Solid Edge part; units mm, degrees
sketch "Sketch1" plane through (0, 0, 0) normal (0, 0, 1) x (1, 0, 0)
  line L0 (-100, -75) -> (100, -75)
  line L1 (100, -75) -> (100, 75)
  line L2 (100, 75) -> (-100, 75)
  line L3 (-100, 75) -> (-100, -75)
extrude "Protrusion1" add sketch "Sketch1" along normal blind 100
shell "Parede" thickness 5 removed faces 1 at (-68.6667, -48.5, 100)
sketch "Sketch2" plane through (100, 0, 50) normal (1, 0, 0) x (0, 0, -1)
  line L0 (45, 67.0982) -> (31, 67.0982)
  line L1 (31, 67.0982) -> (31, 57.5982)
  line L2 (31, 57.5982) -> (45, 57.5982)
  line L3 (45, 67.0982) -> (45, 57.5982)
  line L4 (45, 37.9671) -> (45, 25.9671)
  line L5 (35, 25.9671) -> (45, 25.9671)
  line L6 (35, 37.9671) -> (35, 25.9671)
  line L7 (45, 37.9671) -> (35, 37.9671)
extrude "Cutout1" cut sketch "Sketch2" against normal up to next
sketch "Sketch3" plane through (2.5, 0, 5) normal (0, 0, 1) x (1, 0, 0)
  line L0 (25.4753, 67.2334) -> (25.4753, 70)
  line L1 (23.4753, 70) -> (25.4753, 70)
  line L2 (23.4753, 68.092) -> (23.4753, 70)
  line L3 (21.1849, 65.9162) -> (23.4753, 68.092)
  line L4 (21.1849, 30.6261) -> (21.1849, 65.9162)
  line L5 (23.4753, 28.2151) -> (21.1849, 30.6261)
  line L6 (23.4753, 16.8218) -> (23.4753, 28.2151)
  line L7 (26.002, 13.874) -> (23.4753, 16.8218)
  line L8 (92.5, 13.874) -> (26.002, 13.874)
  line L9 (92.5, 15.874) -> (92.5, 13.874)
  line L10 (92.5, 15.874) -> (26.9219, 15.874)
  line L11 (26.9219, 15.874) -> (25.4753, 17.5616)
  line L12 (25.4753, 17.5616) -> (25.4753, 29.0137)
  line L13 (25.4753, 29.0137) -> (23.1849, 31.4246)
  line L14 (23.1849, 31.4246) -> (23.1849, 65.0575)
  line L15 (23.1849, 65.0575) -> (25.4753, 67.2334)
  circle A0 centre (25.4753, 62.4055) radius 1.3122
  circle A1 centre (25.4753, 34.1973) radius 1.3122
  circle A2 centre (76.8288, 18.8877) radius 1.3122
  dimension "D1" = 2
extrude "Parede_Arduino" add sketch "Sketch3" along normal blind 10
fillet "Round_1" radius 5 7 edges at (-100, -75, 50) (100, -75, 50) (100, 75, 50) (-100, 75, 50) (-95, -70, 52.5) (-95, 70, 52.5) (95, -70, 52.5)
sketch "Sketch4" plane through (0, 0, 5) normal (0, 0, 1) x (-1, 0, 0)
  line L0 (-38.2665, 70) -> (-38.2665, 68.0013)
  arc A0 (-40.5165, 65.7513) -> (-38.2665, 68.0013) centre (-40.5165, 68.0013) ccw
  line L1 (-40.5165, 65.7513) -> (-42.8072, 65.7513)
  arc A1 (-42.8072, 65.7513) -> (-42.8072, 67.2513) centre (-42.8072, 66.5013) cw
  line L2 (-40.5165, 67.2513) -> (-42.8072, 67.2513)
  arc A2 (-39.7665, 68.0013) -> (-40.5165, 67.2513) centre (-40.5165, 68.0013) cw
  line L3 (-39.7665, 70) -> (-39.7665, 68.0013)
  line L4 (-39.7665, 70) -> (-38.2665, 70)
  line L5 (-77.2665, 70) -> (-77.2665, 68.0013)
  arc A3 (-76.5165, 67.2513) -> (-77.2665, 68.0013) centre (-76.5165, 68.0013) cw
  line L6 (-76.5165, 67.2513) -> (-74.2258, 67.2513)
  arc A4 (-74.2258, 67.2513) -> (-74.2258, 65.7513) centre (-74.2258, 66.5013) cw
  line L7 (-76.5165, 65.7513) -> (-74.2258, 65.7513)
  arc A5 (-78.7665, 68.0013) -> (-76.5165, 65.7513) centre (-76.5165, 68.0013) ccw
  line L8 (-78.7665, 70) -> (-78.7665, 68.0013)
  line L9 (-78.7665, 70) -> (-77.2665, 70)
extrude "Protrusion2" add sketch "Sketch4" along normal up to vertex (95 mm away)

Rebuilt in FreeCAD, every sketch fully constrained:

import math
import FreeCAD as App
import Part
import Sketcher
from FreeCAD import Vector
Q = App.Units.Quantity


def edges_at(feature, points):
    """Names of the edges that pass closest to the given points."""
    edges = feature.Shape.Edges
    near = lambda p: min(range(len(edges)), key=lambda i: edges[i].distToShape(Part.Vertex(*p))[0])
    return sorted({f"Edge{near(p) + 1}" for p in points})


def faces_at(feature, points):
    """Names of the faces that lie closest to the given points."""
    faces = feature.Shape.Faces
    near = lambda p: min(range(len(faces)), key=lambda i: faces[i].distToShape(Part.Vertex(*p))[0])
    return sorted({f"Face{near(p) + 1}" for p in points})

doc = App.newDocument("Part")
body = doc.addObject("PartDesign::Body", "Body")

# Sketch on XY plane
sketch1 = body.newObject("Sketcher::SketchObject", "Sketch")
sketch1.AttachmentSupport = (doc.getObject("XY_Plane"), [""])
sketch1.MapMode = "FlatFace"
sketch1.addGeometry([
    Part.LineSegment(Vector(-100, 75, 0), Vector(-100, -75, 0)),
    Part.LineSegment(Vector(-100, -75, 0), Vector(100, -75, 0)),
    Part.LineSegment(Vector(100, -75, 0), Vector(100, 75, 0)),
    Part.LineSegment(Vector(100, 75, 0), Vector(-100, 75, 0)),
], False)
sketch1.addConstraint([
    Sketcher.Constraint("Coincident", 0, 2, 1, 1),
    Sketcher.Constraint("Coincident", 1, 2, 2, 1),
    Sketcher.Constraint("Coincident", 2, 2, 3, 1),
    Sketcher.Constraint("Coincident", 3, 2, 0, 1),
    Sketcher.Constraint("Vertical", 0),
    Sketcher.Constraint("Horizontal", 1),
    Sketcher.Constraint("Vertical", 2),
    Sketcher.Constraint("Horizontal", 3),
    Sketcher.Constraint("Symmetric", 0, 2, 2, 2, -1, 1),
    Sketcher.Constraint("DistanceX", 1, 1, 1, 2, Q("200 mm")),
    Sketcher.Constraint("DistanceY", 0, 2, 0, 1, Q("150 mm")),
])
pad1 = body.newObject("PartDesign::Pad", "Pad")
pad1.Profile = sketch1
pad1.Length = 100
doc.recompute()

thickness = body.newObject("PartDesign::Thickness", "Thickness")
thickness.Base = (pad1, faces_at(pad1, [(-68.667, -48.5, 100)]))
thickness.Value = 5
thickness.Reversed = True
thickness.Join = "Intersection"

# Sketch on YZ plane
sketch2 = body.newObject("Sketcher::SketchObject", "Sketch001")
sketch2.AttachmentSupport = (doc.getObject("YZ_Plane"), [""])
sketch2.MapMode = "FlatFace"
sketch2.AttachmentOffset = App.Placement(Vector(0, 0, 100), App.Rotation())
sketch2.addGeometry([
    Part.LineSegment(Vector(57.5982, 5, 0), Vector(67.0982, 5, 0)),  # 0
    Part.LineSegment(Vector(67.0982, 5, 0), Vector(67.0982, 19, 0)),  # 1
    Part.LineSegment(Vector(67.0982, 19, 0), Vector(57.5982, 19, 0)),  # 2
    Part.LineSegment(Vector(57.5982, 19, 0), Vector(57.5982, 5, 0)),  # 3
    Part.LineSegment(Vector(25.9671, 5, 0), Vector(37.9671, 5, 0)),  # 4
    Part.LineSegment(Vector(37.9671, 5, 0), Vector(37.9671, 15, 0)),  # 5
    Part.LineSegment(Vector(37.9671, 15, 0), Vector(25.9671, 15, 0)),  # 6
    Part.LineSegment(Vector(25.9671, 15, 0), Vector(25.9671, 5, 0)),  # 7
], False)
sketch2.addConstraint([
    Sketcher.Constraint("Coincident", 0, 2, 1, 1),
    Sketcher.Constraint("Coincident", 1, 2, 2, 1),
    Sketcher.Constraint("Coincident", 2, 2, 3, 1),
    Sketcher.Constraint("Coincident", 3, 2, 0, 1),
    Sketcher.Constraint("Coincident", 4, 2, 5, 1),
    Sketcher.Constraint("Coincident", 5, 2, 6, 1),
    Sketcher.Constraint("Coincident", 6, 2, 7, 1),
    Sketcher.Constraint("Coincident", 7, 2, 4, 1),
    Sketcher.Constraint("Horizontal", 0),
    Sketcher.Constraint("Vertical", 1),
    Sketcher.Constraint("Horizontal", 2),
    Sketcher.Constraint("Vertical", 3),
    Sketcher.Constraint("Horizontal", 4),
    Sketcher.Constraint("Vertical", 5),
    Sketcher.Constraint("Horizontal", 6),
    Sketcher.Constraint("Vertical", 7),
    Sketcher.Constraint("Horizontal", 3, 2, 4, 2),
    Sketcher.Constraint("DistanceX", 4, 1, 4, 2, Q("12 mm")),
    Sketcher.Constraint("DistanceY", 1, 1, 1, 2, Q("14 mm")),
    Sketcher.Constraint("DistanceY", 5, 1, 5, 2, Q("10 mm")),
    Sketcher.Constraint("DistanceX", 0, 1, 0, 2, Q("9.5 mm")),
    Sketcher.Constraint("DistanceY", -1, 1, 0, 2, Q("5 mm")),
    Sketcher.Constraint("DistanceX", -1, 1, 4, 2, Q("37.967 mm")),
    Sketcher.Constraint("DistanceX", 4, 2, 3, 2, Q("19.631 mm")),
])
pocket1 = body.newObject("PartDesign::Pocket", "Pocket")
pocket1.Profile = sketch2
pocket1.Type = "UpToFirst"

# Sketch on XY plane
sketch3 = body.newObject("Sketcher::SketchObject", "Sketch002")
sketch3.AttachmentSupport = (doc.getObject("XY_Plane"), [""])
sketch3.MapMode = "FlatFace"
sketch3.AttachmentOffset = App.Placement(Vector(0, 0, 5), App.Rotation())
sketch3.addGeometry([
    Part.LineSegment(Vector(25.6849, 65.0575, 0), Vector(27.9753, 67.2334, 0)),  # 0
    Part.LineSegment(Vector(27.9753, 67.2334, 0), Vector(27.9753, 70, 0)),  # 1
    Part.LineSegment(Vector(27.9753, 70, 0), Vector(25.9753, 70, 0)),  # 2
    Part.LineSegment(Vector(25.9753, 70, 0), Vector(25.9753, 68.092, 0)),  # 3
    Part.LineSegment(Vector(25.9753, 68.092, 0), Vector(23.6849, 65.9162, 0)),  # 4
    Part.LineSegment(Vector(23.6849, 65.9162, 0), Vector(23.6849, 30.6261, 0)),  # 5
    Part.LineSegment(Vector(23.6849, 30.6261, 0), Vector(25.9753, 28.2151, 0)),  # 6
    Part.LineSegment(Vector(25.9753, 28.2151, 0), Vector(25.9753, 16.8218, 0)),  # 7
    Part.LineSegment(Vector(25.9753, 16.8218, 0), Vector(28.502, 13.874, 0)),  # 8
    Part.LineSegment(Vector(28.502, 13.874, 0), Vector(95, 13.874, 0)),  # 9
    Part.LineSegment(Vector(95, 13.874, 0), Vector(95, 15.874, 0)),  # 10
    Part.LineSegment(Vector(95, 15.874, 0), Vector(29.4219, 15.874, 0)),  # 11
    Part.LineSegment(Vector(29.4219, 15.874, 0), Vector(27.9753, 17.5616, 0)),  # 12
    Part.LineSegment(Vector(27.9753, 17.5616, 0), Vector(27.9753, 29.0137, 0)),  # 13
    Part.LineSegment(Vector(27.9753, 29.0137, 0), Vector(25.6849, 31.4246, 0)),  # 14
    Part.LineSegment(Vector(25.6849, 31.4246, 0), Vector(25.6849, 65.0575, 0)),  # 15
    Part.Circle(Vector(27.9753, 62.4055, 0), Vector(0, 0, 1), 1.3122),  # 16
    Part.Circle(Vector(27.9753, 34.1973, 0), Vector(0, 0, 1), 1.3122),  # 17
    Part.Circle(Vector(79.3288, 18.8877, 0), Vector(0, 0, 1), 1.3122),  # 18
], False)
sketch3.addConstraint([
    Sketcher.Constraint("Coincident", 0, 2, 1, 1),
    Sketcher.Constraint("Coincident", 1, 2, 2, 1),
    Sketcher.Constraint("Coincident", 2, 2, 3, 1),
    Sketcher.Constraint("Coincident", 3, 2, 4, 1),
    Sketcher.Constraint("Coincident", 4, 2, 5, 1),
    Sketcher.Constraint("Coincident", 5, 2, 6, 1),
    Sketcher.Constraint("Coincident", 6, 2, 7, 1),
    Sketcher.Constraint("Coincident", 7, 2, 8, 1),
    Sketcher.Constraint("Coincident", 8, 2, 9, 1),
    Sketcher.Constraint("Coincident", 9, 2, 10, 1),
    Sketcher.Constraint("Coincident", 10, 2, 11, 1),
    Sketcher.Constraint("Coincident", 11, 2, 12, 1),
    Sketcher.Constraint("Coincident", 12, 2, 13, 1),
    Sketcher.Constraint("Coincident", 13, 2, 14, 1),
    Sketcher.Constraint("Coincident", 14, 2, 15, 1),
    Sketcher.Constraint("Coincident", 15, 2, 0, 1),
    Sketcher.Constraint("Vertical", 1),
    Sketcher.Constraint("Horizontal", 2),
    Sketcher.Constraint("Vertical", 3),
    Sketcher.Constraint("Vertical", 5),
    Sketcher.Constraint("Vertical", 7),
    Sketcher.Constraint("Horizontal", 9),
    Sketcher.Constraint("Vertical", 10),
    Sketcher.Constraint("Horizontal", 11),
    Sketcher.Constraint("Vertical", 13),
    Sketcher.Constraint("Vertical", 15),
    Sketcher.Constraint("Equal", 16, 17),
    Sketcher.Constraint("Equal", 17, 18),
    Sketcher.Constraint("Parallel", 0, 4),
    Sketcher.Constraint("Perpendicular", 4, 6),
    Sketcher.Constraint("Parallel", 8, 12),
    Sketcher.Constraint("Parallel", 6, 14),
    Sketcher.Constraint("Vertical", 16, 3, 17, 3),
    Sketcher.Constraint("Vertical", 17, 3, 0, 2),
    Sketcher.Constraint("Vertical", 3, 2, 6, 2),
    Sketcher.Constraint("Vertical", 1, 2, 12, 2),
    Sketcher.Constraint("Equal", 2, 10),
    Sketcher.Constraint("Equal", 0, 4),
    Sketcher.Constraint("DistanceX", 2, 2, 2, 1, Q("2 mm")),
    Sketcher.Constraint("DistanceY", -1, 1, 1, 2, Q("70 mm")),
    Sketcher.Constraint("DistanceX", -1, 1, 9, 2, Q("95 mm")),
    Sketcher.Constraint("Diameter", 16, Q("2.6244 mm")),
    Sketcher.Constraint("DistanceY", 5, 2, 5, 1, Q("35.29 mm")),
    Sketcher.Constraint("Angle", 4, Q("-136.4699 deg")),
    Sketcher.Constraint("DistanceX", 9, 1, 9, 2, Q("66.498 mm")),
    Sketcher.Constraint("DistanceX", 11, 2, 11, 1, Q("65.578 mm")),
    Sketcher.Constraint("DistanceY", 3, 2, 3, 1, Q("1.908 mm")),
    Sketcher.Constraint("DistanceY", 13, 1, 13, 2, Q("11.452 mm")),
    Sketcher.Constraint("DistanceY", 15, 1, 15, 2, Q("33.633 mm")),
    Sketcher.Constraint("Distance", 4, Q("3.159 mm")),
    Sketcher.Constraint("DistanceY", 1, 1, 1, 2, Q("2.7666 mm")),
    Sketcher.Constraint("DistanceY", 7, 2, 7, 1, Q("11.3933 mm")),
    Sketcher.Constraint("DistanceX", -1, 1, 4, 2, Q("23.685 mm")),
    Sketcher.Constraint("DistanceY", 16, 3, 0, 2, Q("4.828 mm")),
    Sketcher.Constraint("DistanceY", 17, 3, 0, 2, Q("33.036 mm")),
    Sketcher.Constraint("DistanceX", -1, 1, 18, 3, Q("79.3288 mm")),
    Sketcher.Constraint("DistanceY", -1, 1, 18, 3, Q("18.8877 mm")),
])
pad2 = body.newObject("PartDesign::Pad", "Pad001")
pad2.Profile = sketch3
pad2.Length = 10
doc.recompute()

fillet = body.newObject("PartDesign::Fillet", "Fillet")
fillet.Base = (pad2, edges_at(pad2, [
    (-100, -75, 50),
    (100, -75, 50),
    (100, 75, 50),
    (-100, 75, 50),
    (-95, -70, 52.5),
    (-95, 70, 52.5),
    (95, -70, 52.5),
]))
fillet.Radius = 5

# Sketch on XY plane
sketch4 = body.newObject("Sketcher::SketchObject", "Sketch003")
sketch4.AttachmentSupport = (doc.getObject("XY_Plane"), [""])
sketch4.MapMode = "FlatFace"
sketch4.AttachmentOffset = App.Placement(Vector(0, 0, 5), App.Rotation())
sketch4.addGeometry([
    Part.LineSegment(Vector(38.2665, -68.0013, 0), Vector(38.2665, -70, 0)),  # 0
    Part.LineSegment(Vector(38.2665, -70, 0), Vector(39.7665, -70, 0)),  # 1
    Part.LineSegment(Vector(39.7665, -70, 0), Vector(39.7665, -68.0013, 0)),  # 2
    Part.ArcOfCircle(Part.Circle(Vector(40.5165, -68.0013, 0), Vector(0, 0, 1), 0.75), math.radians(90), math.radians(180)),  # 3
    Part.LineSegment(Vector(40.5165, -67.2513, 0), Vector(42.8072, -67.2513, 0)),  # 4
    Part.ArcOfCircle(Part.Circle(Vector(42.8072, -66.5013, 0), Vector(0, 0, 1), 0.75), math.radians(-90), math.radians(90)),  # 5
    Part.LineSegment(Vector(42.8072, -65.7513, 0), Vector(40.5165, -65.7513, 0)),  # 6
    Part.ArcOfCircle(Part.Circle(Vector(40.5165, -68.0013, 0), Vector(0, 0, 1), 2.25), math.radians(90), math.radians(180)),  # 7
    Part.LineSegment(Vector(77.2665, -68.0013, 0), Vector(77.2665, -70, 0)),  # 8
    Part.LineSegment(Vector(77.2665, -70, 0), Vector(78.7665, -70, 0)),  # 9
    Part.LineSegment(Vector(78.7665, -70, 0), Vector(78.7665, -68.0013, 0)),  # 10
    Part.ArcOfCircle(Part.Circle(Vector(76.5165, -68.0013, 0), Vector(0, 0, 1), 2.25), math.radians(0), math.radians(90)),  # 11
    Part.LineSegment(Vector(76.5165, -65.7513, 0), Vector(74.2258, -65.7513, 0)),  # 12
    Part.ArcOfCircle(Part.Circle(Vector(74.2258, -66.5013, 0), Vector(0, 0, 1), 0.75), math.radians(90), math.radians(270)),  # 13
    Part.LineSegment(Vector(74.2258, -67.2513, 0), Vector(76.5165, -67.2513, 0)),  # 14
    Part.ArcOfCircle(Part.Circle(Vector(76.5165, -68.0013, 0), Vector(0, 0, 1), 0.75), math.radians(0), math.radians(90)),  # 15
], False)
sketch4.addConstraint([
    Sketcher.Constraint("Coincident", 0, 2, 1, 1),
    Sketcher.Constraint("Coincident", 1, 2, 2, 1),
    Sketcher.Constraint("Tangent", 2, 2, 3, 2),
    Sketcher.Constraint("Tangent", 3, 1, 4, 1),
    Sketcher.Constraint("Tangent", 4, 2, 5, 1),
    Sketcher.Constraint("Tangent", 5, 2, 6, 1),
    Sketcher.Constraint("Tangent", 6, 2, 7, 1),
    Sketcher.Constraint("Tangent", 7, 2, 0, 1),
    Sketcher.Constraint("Coincident", 8, 2, 9, 1),
    Sketcher.Constraint("Coincident", 9, 2, 10, 1),
    Sketcher.Constraint("Tangent", 10, 2, 11, 1),
    Sketcher.Constraint("Tangent", 11, 2, 12, 1),
    Sketcher.Constraint("Tangent", 12, 2, 13, 1),
    Sketcher.Constraint("Tangent", 13, 2, 14, 1),
    Sketcher.Constraint("Tangent", 14, 2, 15, 2),
    Sketcher.Constraint("Tangent", 15, 1, 8, 1),
    Sketcher.Constraint("Vertical", 0),
    Sketcher.Constraint("Horizontal", 1),
    Sketcher.Constraint("Vertical", 2),
    Sketcher.Constraint("Horizontal", 4),
    Sketcher.Constraint("Horizontal", 6),
    Sketcher.Constraint("Vertical", 8),
    Sketcher.Constraint("Horizontal", 9),
    Sketcher.Constraint("Vertical", 10),
    Sketcher.Constraint("Horizontal", 12),
    Sketcher.Constraint("Horizontal", 14),
    Sketcher.Constraint("Coincident", 7, 3, 3, 3),
    Sketcher.Constraint("Coincident", 15, 3, 11, 3),
    Sketcher.Constraint("Equal", 3, 5),
    Sketcher.Constraint("Equal", 7, 11),
    Sketcher.Constraint("Equal", 5, 13),
    Sketcher.Constraint("Horizontal", 7, 3, 11, 3),
    Sketcher.Constraint("Horizontal", 1, 2, 8, 2),
    Sketcher.Constraint("Equal", 6, 12),
    Sketcher.Constraint("Radius", 3, Q("0.75 mm")),
    Sketcher.Constraint("DistanceY", 0, 2, -1, 1, Q("70 mm")),
    Sketcher.Constraint("DistanceX", 3, 3, 11, 3, Q("36 mm")),
    Sketcher.Constraint("DistanceX", 4, 1, 4, 2, Q("2.2907 mm")),
    Sketcher.Constraint("DistanceY", 0, 2, 0, 1, Q("1.9987 mm")),
    Sketcher.Constraint("DistanceX", -1, 1, 3, 3, Q("40.5165 mm")),
])
pad3 = body.newObject("PartDesign::Pad", "Pad002")
pad3.Profile = sketch4
pad3.Length = 95

doc.recompute()
